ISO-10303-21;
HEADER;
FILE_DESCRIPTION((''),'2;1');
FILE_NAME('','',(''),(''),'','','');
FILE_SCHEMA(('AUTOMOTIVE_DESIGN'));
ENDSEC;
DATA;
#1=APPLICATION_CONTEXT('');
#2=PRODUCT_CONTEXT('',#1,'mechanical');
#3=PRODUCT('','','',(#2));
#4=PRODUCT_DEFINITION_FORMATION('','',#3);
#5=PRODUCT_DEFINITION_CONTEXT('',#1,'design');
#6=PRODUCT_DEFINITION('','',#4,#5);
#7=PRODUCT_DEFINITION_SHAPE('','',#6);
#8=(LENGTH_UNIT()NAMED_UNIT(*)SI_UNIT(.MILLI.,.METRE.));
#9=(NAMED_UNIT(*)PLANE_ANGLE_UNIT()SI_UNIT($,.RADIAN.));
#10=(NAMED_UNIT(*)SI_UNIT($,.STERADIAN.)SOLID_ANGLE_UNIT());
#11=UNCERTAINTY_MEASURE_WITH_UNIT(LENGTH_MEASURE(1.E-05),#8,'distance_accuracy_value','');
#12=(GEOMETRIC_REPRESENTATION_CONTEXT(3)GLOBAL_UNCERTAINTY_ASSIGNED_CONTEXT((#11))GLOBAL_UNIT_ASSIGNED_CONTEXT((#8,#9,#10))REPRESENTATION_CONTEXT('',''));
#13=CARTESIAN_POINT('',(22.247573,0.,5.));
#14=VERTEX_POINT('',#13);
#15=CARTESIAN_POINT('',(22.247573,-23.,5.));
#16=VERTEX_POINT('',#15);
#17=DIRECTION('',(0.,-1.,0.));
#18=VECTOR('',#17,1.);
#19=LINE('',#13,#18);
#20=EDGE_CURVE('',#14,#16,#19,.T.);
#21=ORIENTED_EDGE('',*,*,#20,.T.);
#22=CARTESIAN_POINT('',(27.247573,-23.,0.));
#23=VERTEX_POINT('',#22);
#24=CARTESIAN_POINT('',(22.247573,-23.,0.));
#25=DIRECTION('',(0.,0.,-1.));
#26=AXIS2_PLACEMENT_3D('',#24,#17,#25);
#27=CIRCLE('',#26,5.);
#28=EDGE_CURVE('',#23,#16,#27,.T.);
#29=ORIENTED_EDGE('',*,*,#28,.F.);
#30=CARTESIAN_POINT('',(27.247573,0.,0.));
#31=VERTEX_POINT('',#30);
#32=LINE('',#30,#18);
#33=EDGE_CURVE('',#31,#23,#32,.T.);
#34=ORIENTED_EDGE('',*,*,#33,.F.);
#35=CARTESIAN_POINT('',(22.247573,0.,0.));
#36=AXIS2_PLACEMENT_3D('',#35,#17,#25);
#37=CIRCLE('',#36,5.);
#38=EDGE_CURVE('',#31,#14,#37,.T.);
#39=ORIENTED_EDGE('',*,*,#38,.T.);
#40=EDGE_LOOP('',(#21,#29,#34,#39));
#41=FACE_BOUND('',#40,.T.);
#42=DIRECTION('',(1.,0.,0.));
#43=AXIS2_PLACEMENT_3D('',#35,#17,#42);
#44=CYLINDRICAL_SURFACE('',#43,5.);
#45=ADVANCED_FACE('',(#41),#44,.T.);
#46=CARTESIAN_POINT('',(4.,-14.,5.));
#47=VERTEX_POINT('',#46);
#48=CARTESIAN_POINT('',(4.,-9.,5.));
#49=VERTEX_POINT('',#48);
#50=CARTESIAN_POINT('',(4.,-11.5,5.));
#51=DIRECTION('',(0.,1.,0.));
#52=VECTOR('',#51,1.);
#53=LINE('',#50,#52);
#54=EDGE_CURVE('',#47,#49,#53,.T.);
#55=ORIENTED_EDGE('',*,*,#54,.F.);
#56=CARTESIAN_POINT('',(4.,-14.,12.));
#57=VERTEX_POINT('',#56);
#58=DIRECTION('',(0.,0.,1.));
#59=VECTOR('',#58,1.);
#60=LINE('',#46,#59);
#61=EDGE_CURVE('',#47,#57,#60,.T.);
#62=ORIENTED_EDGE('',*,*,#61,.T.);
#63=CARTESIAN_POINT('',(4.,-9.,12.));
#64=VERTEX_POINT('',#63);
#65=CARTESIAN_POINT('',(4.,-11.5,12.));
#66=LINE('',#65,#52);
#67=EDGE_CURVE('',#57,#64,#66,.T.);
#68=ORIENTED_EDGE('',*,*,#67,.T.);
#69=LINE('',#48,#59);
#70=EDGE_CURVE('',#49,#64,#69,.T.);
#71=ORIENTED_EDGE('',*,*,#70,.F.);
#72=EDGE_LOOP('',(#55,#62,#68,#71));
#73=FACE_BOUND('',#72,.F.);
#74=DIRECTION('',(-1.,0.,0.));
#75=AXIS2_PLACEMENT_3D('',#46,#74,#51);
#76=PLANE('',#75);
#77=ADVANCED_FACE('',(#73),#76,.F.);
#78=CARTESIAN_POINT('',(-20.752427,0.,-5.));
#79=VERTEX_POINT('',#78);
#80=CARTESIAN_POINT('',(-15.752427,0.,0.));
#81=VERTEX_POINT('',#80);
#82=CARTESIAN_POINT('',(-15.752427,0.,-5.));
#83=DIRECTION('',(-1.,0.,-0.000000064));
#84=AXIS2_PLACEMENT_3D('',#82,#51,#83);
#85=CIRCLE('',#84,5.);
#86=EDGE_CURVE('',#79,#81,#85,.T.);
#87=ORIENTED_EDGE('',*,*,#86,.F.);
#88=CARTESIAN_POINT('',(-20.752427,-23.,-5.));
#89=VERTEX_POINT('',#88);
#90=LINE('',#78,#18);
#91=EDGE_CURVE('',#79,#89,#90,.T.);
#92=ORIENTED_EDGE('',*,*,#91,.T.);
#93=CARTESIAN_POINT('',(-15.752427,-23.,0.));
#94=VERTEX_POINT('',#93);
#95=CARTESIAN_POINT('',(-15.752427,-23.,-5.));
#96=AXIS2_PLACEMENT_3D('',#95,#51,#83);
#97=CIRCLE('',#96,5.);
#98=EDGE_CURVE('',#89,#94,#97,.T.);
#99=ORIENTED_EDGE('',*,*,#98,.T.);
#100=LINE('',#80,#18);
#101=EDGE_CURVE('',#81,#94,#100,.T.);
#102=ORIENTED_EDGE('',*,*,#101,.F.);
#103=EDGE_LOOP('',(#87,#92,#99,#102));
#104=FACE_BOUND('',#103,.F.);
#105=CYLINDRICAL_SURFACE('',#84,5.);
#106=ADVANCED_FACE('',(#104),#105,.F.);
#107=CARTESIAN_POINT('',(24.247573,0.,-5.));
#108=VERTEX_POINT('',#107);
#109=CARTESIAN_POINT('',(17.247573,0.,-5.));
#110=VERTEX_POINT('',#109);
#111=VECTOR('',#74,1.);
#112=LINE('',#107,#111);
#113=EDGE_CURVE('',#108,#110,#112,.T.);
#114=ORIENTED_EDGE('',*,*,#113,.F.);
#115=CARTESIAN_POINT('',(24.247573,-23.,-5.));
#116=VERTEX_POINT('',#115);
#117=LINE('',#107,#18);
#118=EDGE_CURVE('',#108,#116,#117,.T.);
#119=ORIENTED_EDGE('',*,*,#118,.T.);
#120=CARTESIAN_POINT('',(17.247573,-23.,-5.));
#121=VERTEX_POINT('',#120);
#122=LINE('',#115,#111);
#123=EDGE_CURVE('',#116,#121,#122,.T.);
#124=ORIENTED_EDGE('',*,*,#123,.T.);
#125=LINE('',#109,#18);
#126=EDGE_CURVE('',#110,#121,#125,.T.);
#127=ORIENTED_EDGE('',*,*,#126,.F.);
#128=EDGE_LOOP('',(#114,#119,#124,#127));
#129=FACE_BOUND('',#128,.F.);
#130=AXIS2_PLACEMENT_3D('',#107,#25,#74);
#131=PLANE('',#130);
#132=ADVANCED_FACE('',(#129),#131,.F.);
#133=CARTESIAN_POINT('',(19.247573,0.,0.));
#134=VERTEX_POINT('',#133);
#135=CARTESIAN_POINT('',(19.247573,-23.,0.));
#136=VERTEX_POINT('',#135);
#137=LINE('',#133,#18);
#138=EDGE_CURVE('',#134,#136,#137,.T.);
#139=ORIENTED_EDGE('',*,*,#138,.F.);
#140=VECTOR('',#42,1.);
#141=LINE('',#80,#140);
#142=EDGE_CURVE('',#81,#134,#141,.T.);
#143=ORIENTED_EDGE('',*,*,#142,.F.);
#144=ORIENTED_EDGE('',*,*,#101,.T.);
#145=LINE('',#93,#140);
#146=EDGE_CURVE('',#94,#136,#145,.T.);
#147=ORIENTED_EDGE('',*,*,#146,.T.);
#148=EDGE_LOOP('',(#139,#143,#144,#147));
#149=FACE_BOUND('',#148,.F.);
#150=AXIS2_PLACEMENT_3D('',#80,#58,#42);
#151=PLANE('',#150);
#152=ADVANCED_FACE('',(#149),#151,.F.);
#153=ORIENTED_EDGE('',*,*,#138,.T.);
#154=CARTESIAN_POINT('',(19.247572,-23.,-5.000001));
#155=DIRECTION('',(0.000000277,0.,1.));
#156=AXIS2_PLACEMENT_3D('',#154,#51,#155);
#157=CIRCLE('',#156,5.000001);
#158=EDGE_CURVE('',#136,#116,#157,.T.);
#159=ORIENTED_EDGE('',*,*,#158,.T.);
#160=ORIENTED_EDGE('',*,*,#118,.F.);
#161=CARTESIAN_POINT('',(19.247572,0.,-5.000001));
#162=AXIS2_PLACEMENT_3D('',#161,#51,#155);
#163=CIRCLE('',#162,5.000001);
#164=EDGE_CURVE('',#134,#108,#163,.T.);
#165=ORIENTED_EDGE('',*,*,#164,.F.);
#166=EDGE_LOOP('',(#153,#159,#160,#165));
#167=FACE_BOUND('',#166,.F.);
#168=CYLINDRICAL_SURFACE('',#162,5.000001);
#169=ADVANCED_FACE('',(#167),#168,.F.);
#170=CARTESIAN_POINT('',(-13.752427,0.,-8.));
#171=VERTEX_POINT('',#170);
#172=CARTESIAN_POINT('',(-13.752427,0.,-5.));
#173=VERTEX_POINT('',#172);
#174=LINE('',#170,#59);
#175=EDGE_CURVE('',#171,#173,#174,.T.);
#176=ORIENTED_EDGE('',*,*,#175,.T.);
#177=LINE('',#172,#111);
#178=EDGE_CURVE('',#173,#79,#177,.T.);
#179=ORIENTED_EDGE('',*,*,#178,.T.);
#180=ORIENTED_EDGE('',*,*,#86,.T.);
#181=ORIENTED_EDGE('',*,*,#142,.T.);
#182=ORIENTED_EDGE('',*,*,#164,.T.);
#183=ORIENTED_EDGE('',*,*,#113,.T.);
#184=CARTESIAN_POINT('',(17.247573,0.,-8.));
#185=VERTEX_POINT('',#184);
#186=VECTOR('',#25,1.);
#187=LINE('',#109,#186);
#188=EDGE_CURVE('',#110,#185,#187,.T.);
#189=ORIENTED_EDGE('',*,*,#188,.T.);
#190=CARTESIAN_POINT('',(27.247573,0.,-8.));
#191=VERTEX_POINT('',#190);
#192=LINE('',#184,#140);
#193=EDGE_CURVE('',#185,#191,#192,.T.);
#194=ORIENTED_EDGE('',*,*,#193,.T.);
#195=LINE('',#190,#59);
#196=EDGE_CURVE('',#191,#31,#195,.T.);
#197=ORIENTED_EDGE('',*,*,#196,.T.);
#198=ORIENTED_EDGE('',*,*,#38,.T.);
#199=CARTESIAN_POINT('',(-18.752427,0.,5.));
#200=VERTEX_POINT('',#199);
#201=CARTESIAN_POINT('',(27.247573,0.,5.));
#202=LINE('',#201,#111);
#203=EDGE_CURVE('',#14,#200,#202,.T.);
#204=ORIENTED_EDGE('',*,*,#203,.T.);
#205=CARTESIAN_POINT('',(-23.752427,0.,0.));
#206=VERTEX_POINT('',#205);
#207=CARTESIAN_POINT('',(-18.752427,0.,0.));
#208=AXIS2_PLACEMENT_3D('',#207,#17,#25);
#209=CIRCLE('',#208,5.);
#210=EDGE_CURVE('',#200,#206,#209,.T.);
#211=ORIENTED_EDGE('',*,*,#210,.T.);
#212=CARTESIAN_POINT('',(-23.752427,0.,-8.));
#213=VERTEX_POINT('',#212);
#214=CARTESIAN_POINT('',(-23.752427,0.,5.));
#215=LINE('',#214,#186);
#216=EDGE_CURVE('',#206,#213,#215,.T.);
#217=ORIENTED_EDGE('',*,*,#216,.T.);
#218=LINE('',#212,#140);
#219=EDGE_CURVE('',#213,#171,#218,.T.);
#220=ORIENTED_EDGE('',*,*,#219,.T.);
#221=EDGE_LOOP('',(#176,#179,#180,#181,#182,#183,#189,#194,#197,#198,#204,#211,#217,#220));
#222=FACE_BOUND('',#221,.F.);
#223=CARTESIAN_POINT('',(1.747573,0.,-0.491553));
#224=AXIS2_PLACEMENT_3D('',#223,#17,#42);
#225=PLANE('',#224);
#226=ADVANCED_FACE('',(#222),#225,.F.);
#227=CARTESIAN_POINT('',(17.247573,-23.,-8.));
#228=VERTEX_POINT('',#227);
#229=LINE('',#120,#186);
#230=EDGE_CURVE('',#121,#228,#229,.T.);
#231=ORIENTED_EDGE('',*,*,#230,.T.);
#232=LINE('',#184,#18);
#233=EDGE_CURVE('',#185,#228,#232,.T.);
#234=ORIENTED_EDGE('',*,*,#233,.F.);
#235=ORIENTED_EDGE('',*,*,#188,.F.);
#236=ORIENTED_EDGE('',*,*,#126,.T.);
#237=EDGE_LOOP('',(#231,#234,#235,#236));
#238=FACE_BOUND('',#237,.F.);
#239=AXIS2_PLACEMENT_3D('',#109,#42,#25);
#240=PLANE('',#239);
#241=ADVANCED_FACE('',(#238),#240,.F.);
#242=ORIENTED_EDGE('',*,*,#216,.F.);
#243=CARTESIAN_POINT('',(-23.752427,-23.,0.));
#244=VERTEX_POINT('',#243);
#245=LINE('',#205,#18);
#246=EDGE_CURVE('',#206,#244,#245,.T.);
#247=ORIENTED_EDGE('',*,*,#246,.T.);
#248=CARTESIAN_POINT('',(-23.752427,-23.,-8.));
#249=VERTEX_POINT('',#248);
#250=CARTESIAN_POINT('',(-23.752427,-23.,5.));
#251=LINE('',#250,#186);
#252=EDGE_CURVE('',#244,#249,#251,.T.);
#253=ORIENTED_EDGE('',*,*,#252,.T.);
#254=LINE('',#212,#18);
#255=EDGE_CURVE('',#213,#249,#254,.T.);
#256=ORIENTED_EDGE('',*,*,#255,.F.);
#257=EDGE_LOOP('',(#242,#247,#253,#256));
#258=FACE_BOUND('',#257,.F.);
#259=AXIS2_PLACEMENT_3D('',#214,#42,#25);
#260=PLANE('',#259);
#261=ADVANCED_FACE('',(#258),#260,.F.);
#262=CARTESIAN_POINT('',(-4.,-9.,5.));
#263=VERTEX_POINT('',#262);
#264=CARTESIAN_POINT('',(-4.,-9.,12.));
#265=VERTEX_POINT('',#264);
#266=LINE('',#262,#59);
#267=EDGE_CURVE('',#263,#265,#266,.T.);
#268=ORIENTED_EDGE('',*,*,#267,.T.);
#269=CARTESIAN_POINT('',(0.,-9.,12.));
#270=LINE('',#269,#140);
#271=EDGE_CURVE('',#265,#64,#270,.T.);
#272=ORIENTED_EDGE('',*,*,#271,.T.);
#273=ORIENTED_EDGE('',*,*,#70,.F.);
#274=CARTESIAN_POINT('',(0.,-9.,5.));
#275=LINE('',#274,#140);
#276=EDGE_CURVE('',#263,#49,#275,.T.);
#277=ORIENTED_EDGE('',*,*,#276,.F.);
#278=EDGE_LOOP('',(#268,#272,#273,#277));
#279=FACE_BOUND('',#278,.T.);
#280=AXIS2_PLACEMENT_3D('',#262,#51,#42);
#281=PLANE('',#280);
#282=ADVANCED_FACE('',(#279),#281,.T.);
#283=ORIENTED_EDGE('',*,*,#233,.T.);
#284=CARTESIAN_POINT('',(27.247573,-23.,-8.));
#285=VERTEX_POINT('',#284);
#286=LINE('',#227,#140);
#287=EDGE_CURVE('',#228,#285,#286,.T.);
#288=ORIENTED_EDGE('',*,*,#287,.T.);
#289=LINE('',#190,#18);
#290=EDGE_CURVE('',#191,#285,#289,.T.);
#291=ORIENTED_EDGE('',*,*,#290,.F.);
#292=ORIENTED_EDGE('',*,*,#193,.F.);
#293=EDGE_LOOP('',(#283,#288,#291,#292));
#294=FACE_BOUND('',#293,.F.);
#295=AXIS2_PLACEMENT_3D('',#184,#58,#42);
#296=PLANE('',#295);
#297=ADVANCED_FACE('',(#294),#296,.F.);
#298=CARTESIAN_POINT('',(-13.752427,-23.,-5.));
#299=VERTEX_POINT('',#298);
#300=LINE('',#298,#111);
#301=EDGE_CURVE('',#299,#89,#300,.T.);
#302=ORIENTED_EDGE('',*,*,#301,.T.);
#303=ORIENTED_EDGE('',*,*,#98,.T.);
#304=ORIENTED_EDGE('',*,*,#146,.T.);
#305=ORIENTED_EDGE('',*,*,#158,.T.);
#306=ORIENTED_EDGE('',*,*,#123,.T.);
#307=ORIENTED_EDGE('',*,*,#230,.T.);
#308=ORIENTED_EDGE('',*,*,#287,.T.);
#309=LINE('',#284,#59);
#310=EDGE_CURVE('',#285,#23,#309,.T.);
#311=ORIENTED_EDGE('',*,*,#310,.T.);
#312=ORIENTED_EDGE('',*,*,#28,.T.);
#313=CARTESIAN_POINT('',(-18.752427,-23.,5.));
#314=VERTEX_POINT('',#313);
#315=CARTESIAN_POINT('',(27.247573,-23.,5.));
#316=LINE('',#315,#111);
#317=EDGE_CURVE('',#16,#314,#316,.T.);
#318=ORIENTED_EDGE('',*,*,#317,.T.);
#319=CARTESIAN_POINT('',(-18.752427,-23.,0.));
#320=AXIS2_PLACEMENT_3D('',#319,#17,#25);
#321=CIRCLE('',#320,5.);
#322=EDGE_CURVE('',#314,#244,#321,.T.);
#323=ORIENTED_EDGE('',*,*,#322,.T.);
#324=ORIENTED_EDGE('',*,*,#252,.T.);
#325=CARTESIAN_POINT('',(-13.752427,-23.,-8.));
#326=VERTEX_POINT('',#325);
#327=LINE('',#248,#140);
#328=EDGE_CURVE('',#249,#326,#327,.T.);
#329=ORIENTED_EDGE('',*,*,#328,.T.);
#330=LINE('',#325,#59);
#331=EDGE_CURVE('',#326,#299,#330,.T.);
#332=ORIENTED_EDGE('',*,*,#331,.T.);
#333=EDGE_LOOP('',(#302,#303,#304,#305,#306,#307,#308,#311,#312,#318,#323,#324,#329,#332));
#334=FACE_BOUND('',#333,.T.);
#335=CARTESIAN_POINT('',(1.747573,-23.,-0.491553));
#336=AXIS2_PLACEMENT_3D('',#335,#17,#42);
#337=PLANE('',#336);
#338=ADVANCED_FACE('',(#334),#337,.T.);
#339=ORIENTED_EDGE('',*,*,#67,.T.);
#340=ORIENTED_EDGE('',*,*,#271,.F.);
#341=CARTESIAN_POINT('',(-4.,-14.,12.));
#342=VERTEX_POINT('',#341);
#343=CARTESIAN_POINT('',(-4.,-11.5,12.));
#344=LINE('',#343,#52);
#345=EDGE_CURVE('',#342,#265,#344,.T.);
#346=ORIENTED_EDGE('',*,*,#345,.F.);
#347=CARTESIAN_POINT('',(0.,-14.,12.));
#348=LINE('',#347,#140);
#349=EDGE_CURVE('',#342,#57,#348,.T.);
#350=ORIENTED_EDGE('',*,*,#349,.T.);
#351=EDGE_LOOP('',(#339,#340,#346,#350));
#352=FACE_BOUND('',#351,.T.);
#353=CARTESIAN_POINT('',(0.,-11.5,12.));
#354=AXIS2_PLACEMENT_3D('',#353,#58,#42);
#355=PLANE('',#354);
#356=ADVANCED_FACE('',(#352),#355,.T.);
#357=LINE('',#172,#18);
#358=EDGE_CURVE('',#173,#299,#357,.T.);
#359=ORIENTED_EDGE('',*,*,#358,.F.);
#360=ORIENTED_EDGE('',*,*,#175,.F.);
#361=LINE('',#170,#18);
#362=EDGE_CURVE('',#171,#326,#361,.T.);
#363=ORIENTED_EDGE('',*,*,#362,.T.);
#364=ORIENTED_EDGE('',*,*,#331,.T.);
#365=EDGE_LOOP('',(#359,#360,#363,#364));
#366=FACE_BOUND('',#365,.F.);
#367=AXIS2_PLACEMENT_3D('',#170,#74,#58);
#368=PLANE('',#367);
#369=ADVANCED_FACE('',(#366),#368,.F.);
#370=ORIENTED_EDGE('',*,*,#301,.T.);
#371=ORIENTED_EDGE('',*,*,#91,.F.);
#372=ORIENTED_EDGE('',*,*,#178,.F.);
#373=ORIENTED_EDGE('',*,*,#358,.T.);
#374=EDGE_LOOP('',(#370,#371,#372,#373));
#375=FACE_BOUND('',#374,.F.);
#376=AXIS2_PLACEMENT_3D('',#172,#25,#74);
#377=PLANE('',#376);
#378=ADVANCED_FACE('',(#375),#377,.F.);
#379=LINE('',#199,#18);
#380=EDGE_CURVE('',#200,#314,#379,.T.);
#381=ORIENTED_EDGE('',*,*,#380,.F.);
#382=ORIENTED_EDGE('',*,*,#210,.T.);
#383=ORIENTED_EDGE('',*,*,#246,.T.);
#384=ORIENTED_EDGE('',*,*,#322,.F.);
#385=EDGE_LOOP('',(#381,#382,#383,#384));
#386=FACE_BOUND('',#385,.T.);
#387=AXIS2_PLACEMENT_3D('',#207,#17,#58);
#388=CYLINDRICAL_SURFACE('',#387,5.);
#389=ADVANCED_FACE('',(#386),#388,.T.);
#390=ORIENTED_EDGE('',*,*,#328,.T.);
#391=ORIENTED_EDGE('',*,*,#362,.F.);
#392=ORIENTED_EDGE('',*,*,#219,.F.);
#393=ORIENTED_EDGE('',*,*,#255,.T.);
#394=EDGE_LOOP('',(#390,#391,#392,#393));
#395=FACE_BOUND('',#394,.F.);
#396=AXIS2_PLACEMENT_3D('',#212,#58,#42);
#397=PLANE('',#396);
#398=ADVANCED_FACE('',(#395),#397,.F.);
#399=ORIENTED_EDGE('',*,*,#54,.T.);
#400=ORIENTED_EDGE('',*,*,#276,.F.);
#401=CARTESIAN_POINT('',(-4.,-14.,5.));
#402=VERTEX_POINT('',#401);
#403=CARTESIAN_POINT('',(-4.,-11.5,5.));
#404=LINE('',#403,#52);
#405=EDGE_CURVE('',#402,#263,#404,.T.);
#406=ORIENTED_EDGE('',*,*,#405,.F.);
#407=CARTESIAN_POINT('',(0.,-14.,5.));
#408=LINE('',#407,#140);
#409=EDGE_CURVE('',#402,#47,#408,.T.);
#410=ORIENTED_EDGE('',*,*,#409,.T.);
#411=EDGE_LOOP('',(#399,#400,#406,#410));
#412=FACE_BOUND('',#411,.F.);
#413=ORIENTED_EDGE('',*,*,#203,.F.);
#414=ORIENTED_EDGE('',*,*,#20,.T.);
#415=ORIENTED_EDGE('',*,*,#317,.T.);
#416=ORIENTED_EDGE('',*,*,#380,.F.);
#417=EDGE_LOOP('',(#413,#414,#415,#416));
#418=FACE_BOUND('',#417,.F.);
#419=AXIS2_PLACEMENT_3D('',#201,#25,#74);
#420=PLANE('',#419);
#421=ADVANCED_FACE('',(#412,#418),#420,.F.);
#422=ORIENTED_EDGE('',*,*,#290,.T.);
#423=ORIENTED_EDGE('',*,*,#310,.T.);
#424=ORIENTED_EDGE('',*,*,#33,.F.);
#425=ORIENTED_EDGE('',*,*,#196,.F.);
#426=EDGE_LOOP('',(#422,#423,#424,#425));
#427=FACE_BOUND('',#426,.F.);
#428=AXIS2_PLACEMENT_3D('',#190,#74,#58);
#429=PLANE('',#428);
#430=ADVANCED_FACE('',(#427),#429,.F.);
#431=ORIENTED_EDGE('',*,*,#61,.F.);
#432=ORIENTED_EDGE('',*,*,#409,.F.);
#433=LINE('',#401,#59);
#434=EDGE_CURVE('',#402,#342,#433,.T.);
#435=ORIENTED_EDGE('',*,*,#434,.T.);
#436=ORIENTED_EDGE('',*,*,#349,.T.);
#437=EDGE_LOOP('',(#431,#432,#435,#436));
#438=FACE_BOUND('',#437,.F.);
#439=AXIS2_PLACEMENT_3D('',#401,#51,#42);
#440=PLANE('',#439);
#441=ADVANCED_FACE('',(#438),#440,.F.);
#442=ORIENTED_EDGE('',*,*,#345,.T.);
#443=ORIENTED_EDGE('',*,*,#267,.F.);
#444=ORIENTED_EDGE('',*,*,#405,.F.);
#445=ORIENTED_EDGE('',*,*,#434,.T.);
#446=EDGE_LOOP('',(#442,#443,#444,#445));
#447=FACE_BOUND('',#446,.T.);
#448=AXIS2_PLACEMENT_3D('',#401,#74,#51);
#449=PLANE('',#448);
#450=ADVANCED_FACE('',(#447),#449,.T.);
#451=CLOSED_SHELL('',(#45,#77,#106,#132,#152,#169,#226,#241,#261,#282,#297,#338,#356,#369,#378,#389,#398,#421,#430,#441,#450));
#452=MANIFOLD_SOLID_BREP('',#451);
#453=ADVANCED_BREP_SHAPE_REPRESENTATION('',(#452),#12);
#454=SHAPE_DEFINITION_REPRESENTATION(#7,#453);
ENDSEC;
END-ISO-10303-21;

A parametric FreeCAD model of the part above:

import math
import FreeCAD as App
import Part
import Sketcher

V = App.Vector


def edges_at(feature, points):
    """Names of the edges that pass closest to the given points."""
    edges = feature.Shape.Edges
    near = lambda p: min(range(len(edges)), key=lambda i: edges[i].distToShape(Part.Vertex(*p))[0])
    return sorted({f"Edge{near(p) + 1}" for p in points})

doc = App.newDocument("Part")
body = doc.addObject("PartDesign::Body", "Body")

sketch1 = body.newObject("Sketcher::SketchObject", "Sketch")
sketch1.AttachmentSupport = (doc.getObject("XZ_Plane"), [""])
sketch1.MapMode = "FlatFace"
sketch1.addGeometry([
    Part.ArcOfCircle(Part.Circle(V(-15.8, -5, 0), V(0, 0, 1), 5), math.radians(90), math.radians(180)),
    Part.LineSegment(V(-15.8, 0, 0), V(19.2, 0, 0)),
    Part.ArcOfCircle(Part.Circle(V(19.2, -5, 0), V(0, 0, 1), 5), math.radians(0), math.radians(90)),
    Part.LineSegment(V(24.2, -5, 0), V(17.2, -5, 0)),
    Part.LineSegment(V(17.2, -5, 0), V(17.2, -8, 0)),
    Part.LineSegment(V(17.2, -8, 0), V(27.2, -8, 0)),
    Part.LineSegment(V(27.2, -8, 0), V(27.2, 5, 0)),
    Part.LineSegment(V(27.2, 5, 0), V(-23.8, 5, 0)),
    Part.LineSegment(V(-23.8, 5, 0), V(-23.8, -8, 0)),
    Part.LineSegment(V(-23.8, -8, 0), V(-13.8, -8, 0)),
    Part.LineSegment(V(-13.8, -8, 0), V(-13.8, -5, 0)),
    Part.LineSegment(V(-13.8, -5, 0), V(-20.8, -5, 0)),
], False)
sketch1.addConstraint([
    Sketcher.Constraint("Tangent", 0, 1, 1, 1),
    Sketcher.Constraint("Tangent", 1, 2, 2, 2),
    Sketcher.Constraint("Coincident", 2, 1, 3, 1),
    Sketcher.Constraint("Coincident", 3, 2, 4, 1),
    Sketcher.Constraint("Coincident", 4, 2, 5, 1),
    Sketcher.Constraint("Coincident", 5, 2, 6, 1),
    Sketcher.Constraint("Coincident", 6, 2, 7, 1),
    Sketcher.Constraint("Coincident", 7, 2, 8, 1),
    Sketcher.Constraint("Coincident", 8, 2, 9, 1),
    Sketcher.Constraint("Coincident", 9, 2, 10, 1),
    Sketcher.Constraint("Coincident", 10, 2, 11, 1),
    Sketcher.Constraint("Coincident", 11, 2, 0, 2),
    Sketcher.Constraint("Horizontal", 1),
    Sketcher.Constraint("Horizontal", 3),
    Sketcher.Constraint("Vertical", 4),
    Sketcher.Constraint("Horizontal", 5),
    Sketcher.Constraint("Vertical", 6),
    Sketcher.Constraint("Horizontal", 7),
    Sketcher.Constraint("Vertical", 8),
    Sketcher.Constraint("Horizontal", 9),
    Sketcher.Constraint("Vertical", 10),
    Sketcher.Constraint("Horizontal", 11),
    Sketcher.Constraint("Equal", 0, 2),
    Sketcher.Constraint("PointOnObject", 0, 1, -1),
    Sketcher.Constraint("Horizontal", 0, 3, 2, 1),
    Sketcher.Constraint("Horizontal", 5, 2, 8, 2),
    Sketcher.Constraint("Horizontal", 3, 2, 10, 2),
    Sketcher.Constraint("Equal", 5, 9),
    Sketcher.Constraint("Equal", 3, 11),
    Sketcher.Constraint("Radius", 0, 5.0),
    Sketcher.Constraint("DistanceX", 1, 1, 1, 2, 35.0),
    Sketcher.Constraint("DistanceX", 3, 2, 3, 1, 7.0),
    Sketcher.Constraint("DistanceX", 5, 1, 5, 2, 10.0),
    Sketcher.Constraint("DistanceY", 4, 2, 4, 1, 3.0),
    Sketcher.Constraint("DistanceY", 6, 1, 6, 2, 13.0),
    Sketcher.Constraint("DistanceX", -1, 1, 2, 3, 19.247572),
])
pad1 = body.newObject("PartDesign::Pad", "Pad")
pad1.Profile = sketch1
pad1.Length = 23
doc.recompute()

fillet = body.newObject("PartDesign::Fillet", "Fillet")
fillet.Base = (pad1, edges_at(pad1, [(27.248, -11.5, 5), (-23.752, -11.5, 5)]))
fillet.Radius = 5

sketch2 = body.newObject("Sketcher::SketchObject", "Sketch001")
sketch2.AttachmentSupport = (doc.getObject("XY_Plane"), [""])
sketch2.MapMode = "FlatFace"
sketch2.AttachmentOffset = App.Placement(V(0, 0, 5), App.Rotation())
sketch2.addGeometry([
    Part.LineSegment(V(-4, -9, 0), V(-4, -14, 0)),
    Part.LineSegment(V(-4, -14, 0), V(4, -14, 0)),
    Part.LineSegment(V(4, -14, 0), V(4, -9, 0)),
    Part.LineSegment(V(4, -9, 0), V(-4, -9, 0)),
], False)
sketch2.addConstraint([
    Sketcher.Constraint("Coincident", 0, 2, 1, 1),
    Sketcher.Constraint("Coincident", 1, 2, 2, 1),
    Sketcher.Constraint("Coincident", 2, 2, 3, 1),
    Sketcher.Constraint("Coincident", 3, 2, 0, 1),
    Sketcher.Constraint("Vertical", 0),
    Sketcher.Constraint("Horizontal", 1),
    Sketcher.Constraint("Vertical", 2),
    Sketcher.Constraint("Horizontal", 3),
    Sketcher.Constraint("DistanceX", 1, 1, 1, 2, 8.0),
    Sketcher.Constraint("DistanceY", 0, 2, 0, 1, 5.0),
    Sketcher.Constraint("DistanceX", 0, 2, -1, 1, 4.0),
    Sketcher.Constraint("DistanceY", 0, 2, -1, 1, 14.0),
])
pad2 = body.newObject("PartDesign::Pad", "Pad001")
pad2.Profile = sketch2
pad2.Length = 7

doc.recompute()
